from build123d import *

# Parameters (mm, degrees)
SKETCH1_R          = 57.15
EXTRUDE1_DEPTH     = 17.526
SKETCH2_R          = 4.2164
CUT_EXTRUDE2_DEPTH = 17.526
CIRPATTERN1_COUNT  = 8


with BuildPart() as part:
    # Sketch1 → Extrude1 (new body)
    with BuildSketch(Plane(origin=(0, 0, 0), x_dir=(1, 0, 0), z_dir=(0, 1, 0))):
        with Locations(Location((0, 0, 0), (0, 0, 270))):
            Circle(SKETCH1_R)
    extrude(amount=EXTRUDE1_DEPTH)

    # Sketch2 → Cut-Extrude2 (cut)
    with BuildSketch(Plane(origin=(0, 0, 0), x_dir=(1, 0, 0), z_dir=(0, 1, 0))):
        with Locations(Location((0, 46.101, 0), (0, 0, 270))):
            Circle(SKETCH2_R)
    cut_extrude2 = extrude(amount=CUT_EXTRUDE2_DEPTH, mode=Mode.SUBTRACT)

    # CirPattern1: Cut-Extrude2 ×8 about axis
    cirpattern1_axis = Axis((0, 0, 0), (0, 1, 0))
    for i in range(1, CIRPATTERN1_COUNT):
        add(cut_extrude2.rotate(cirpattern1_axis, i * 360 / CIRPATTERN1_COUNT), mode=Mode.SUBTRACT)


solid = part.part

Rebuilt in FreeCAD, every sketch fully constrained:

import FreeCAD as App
import Part
import Sketcher
Q = App.Units.Quantity

doc = App.newDocument("Part")
params = doc.addObject("Spreadsheet::Sheet", "Params")
for row, (alias, value) in enumerate([
    ("sketch1_diameter", "4.5 in"),
    ("pad1_length", "0.69 in"),
    ("sketch2_diameter", "0.332 in"),
    ("pocket1_length", "0.69 in"),
], start=1):
    params.set(f"A{row}", alias)
    params.set(f"B{row}", "=" + value)
    params.setAlias(f"B{row}", alias)

body = doc.addObject("PartDesign::Body", "Body")

# Sketch on XZ plane
sketch1 = body.newObject("Sketcher::SketchObject", "Sketch")
sketch1.AttachmentSupport = (doc.getObject("XZ_Plane"), [""])
sketch1.MapMode = "FlatFace"
sketch1.addGeometry(Part.Circle(App.Vector(0, 0, 0), App.Vector(0, 0, 1), 57), False)
sketch1.addConstraint([
    Sketcher.Constraint("Coincident", 0, 3, -1, 1),
    Sketcher.Constraint("Diameter", 0, Q("4.5 in")),
])
sketch1.setExpression("Constraints[1]", "Params.sketch1_diameter")
pad1 = body.newObject("PartDesign::Pad", "Pad")
pad1.Profile = sketch1
pad1.setExpression("Length", "Params.pad1_length")
pad1.Reversed = True

# Sketch on XZ plane
sketch2 = body.newObject("Sketcher::SketchObject", "Sketch001")
sketch2.AttachmentSupport = (doc.getObject("XZ_Plane"), [""])
sketch2.MapMode = "FlatFace"
sketch2.addGeometry(Part.Circle(App.Vector(0, -46.1, 0), App.Vector(0, 0, 1), 4.2), False)
sketch2.addConstraint([
    Sketcher.Constraint("PointOnObject", 0, 3, -2),
    Sketcher.Constraint("Diameter", 0, Q("0.332 in")),
    Sketcher.Constraint("DistanceY", 0, 3, -1, 1, Q("1.815 in")),
])
sketch2.setExpression("Constraints[1]", "Params.sketch2_diameter")
pocket1 = body.newObject("PartDesign::Pocket", "Pocket")
pocket1.Profile = sketch2
pocket1.setExpression("Length", "Params.pocket1_length")
doc.recompute()

polarpattern = body.newObject("PartDesign::PolarPattern", "PolarPattern")
polarpattern.Originals = [pocket1]
polarpattern.Axis = (doc.getObject("Y_Axis"), [""])
polarpattern.Angle = 360
polarpattern.Occurrences = 8
body.Tip = polarpattern

doc.recompute()
